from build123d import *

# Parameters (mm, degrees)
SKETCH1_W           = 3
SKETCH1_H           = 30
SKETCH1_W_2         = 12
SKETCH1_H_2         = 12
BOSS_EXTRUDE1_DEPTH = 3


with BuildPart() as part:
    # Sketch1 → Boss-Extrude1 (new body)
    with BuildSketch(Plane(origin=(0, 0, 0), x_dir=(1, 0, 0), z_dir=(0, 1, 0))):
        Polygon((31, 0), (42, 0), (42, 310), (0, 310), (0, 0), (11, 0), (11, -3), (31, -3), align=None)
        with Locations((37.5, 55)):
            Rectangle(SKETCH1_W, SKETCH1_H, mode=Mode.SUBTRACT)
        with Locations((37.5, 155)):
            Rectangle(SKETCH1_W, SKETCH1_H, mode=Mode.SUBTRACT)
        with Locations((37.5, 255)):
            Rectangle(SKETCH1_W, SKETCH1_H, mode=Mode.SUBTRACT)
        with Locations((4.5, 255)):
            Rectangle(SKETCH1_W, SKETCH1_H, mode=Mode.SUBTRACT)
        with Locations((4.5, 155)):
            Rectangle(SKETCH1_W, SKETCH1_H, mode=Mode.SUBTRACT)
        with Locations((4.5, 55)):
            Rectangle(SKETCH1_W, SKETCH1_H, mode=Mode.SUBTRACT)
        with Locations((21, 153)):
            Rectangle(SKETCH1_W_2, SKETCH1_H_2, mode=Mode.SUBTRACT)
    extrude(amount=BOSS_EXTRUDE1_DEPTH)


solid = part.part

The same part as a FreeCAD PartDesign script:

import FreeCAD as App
import Part
import Sketcher
from FreeCAD import Vector
Q = App.Units.Quantity


def add_polygon(sketch, points):
    """Adds a closed chain of lines whose ends are joined by coincident constraints."""
    first, n = sketch.GeometryCount, len(points)
    for a, b in zip(points, points[1:] + points[:1]):
        sketch.addGeometry(Part.LineSegment(App.Vector(*a, 0), App.Vector(*b, 0)), False)
    for i in range(n):
        sketch.addConstraint(Sketcher.Constraint("Coincident", first + i, 2, first + (i + 1) % n, 1))

doc = App.newDocument("Part")
body = doc.addObject("PartDesign::Body", "Body")

# Sketch on XZ plane
sketch1 = doc.addObject("Sketcher::SketchObject", "Sketch")
body.addObject(sketch1)
sketch1.AttachmentSupport = (doc.XZ_Plane, [""])
sketch1.MapMode = "FlatFace"
add_polygon(sketch1, [(31, 0), (42, 0), (42, -310), (0, -310), (0, 0), (11, 0), (11, 3), (31, 3)])  # lines 0-7
add_polygon(sketch1, [(6, -40), (3, -40), (3, -70), (6, -70)])  # lines 8-11
add_polygon(sketch1, [(39, -40), (36, -40), (36, -70), (39, -70)])  # lines 12-15
add_polygon(sketch1, [(27, -147), (15, -147), (15, -159), (27, -159)])  # lines 16-19
add_polygon(sketch1, [(6, -140), (3, -140), (3, -170), (6, -170)])  # lines 20-23
add_polygon(sketch1, [(6, -240), (3, -240), (3, -270), (6, -270)])  # lines 24-27
add_polygon(sketch1, [(39, -140), (36, -140), (36, -170), (39, -170)])  # lines 28-31
add_polygon(sketch1, [(39, -240), (36, -240), (36, -270), (39, -270)])  # lines 32-35
sketch1.addConstraint([
    Sketcher.Constraint("Horizontal", 0),
    Sketcher.Constraint("Vertical", 1),
    Sketcher.Constraint("Horizontal", 2),
    Sketcher.Constraint("Vertical", 3),
    Sketcher.Constraint("Horizontal", 4),
    Sketcher.Constraint("Vertical", 5),
    Sketcher.Constraint("Horizontal", 6),
    Sketcher.Constraint("Vertical", 7),
    Sketcher.Constraint("Horizontal", 8),
    Sketcher.Constraint("Vertical", 9),
    Sketcher.Constraint("Horizontal", 10),
    Sketcher.Constraint("Vertical", 11),
    Sketcher.Constraint("Horizontal", 12),
    Sketcher.Constraint("Vertical", 13),
    Sketcher.Constraint("Horizontal", 14),
    Sketcher.Constraint("Vertical", 15),
    Sketcher.Constraint("Horizontal", 16),
    Sketcher.Constraint("Vertical", 17),
    Sketcher.Constraint("Horizontal", 18),
    Sketcher.Constraint("Vertical", 19),
    Sketcher.Constraint("Horizontal", 20),
    Sketcher.Constraint("Vertical", 21),
    Sketcher.Constraint("Horizontal", 22),
    Sketcher.Constraint("Vertical", 23),
    Sketcher.Constraint("Horizontal", 24),
    Sketcher.Constraint("Vertical", 25),
    Sketcher.Constraint("Horizontal", 26),
    Sketcher.Constraint("Vertical", 27),
    Sketcher.Constraint("Horizontal", 28),
    Sketcher.Constraint("Vertical", 29),
    Sketcher.Constraint("Horizontal", 30),
    Sketcher.Constraint("Vertical", 31),
    Sketcher.Constraint("Horizontal", 32),
    Sketcher.Constraint("Vertical", 33),
    Sketcher.Constraint("Horizontal", 34),
    Sketcher.Constraint("Vertical", 35),
    Sketcher.Constraint("Coincident", 3, 2, -1, 1),
    Sketcher.Constraint("PointOnObject", 0, 2, -1),
    Sketcher.Constraint("Horizontal", 11, 2, 12, 2),
    Sketcher.Constraint("Horizontal", 10, 2, 13, 2),
    Sketcher.Constraint("Horizontal", 23, 2, 28, 2),
    Sketcher.Constraint("Horizontal", 22, 2, 29, 2),
    Sketcher.Constraint("Horizontal", 27, 2, 32, 2),
    Sketcher.Constraint("Horizontal", 26, 2, 33, 2),
    Sketcher.Constraint("Vertical", 9, 2, 20, 2),
    Sketcher.Constraint("Vertical", 11, 2, 22, 2),
    Sketcher.Constraint("Vertical", 21, 2, 24, 2),
    Sketcher.Constraint("Vertical", 23, 2, 26, 2),
    Sketcher.Constraint("Vertical", 13, 2, 28, 2),
    Sketcher.Constraint("Vertical", 15, 2, 30, 2),
    Sketcher.Constraint("Vertical", 29, 2, 32, 2),
    Sketcher.Constraint("Vertical", 31, 2, 34, 2),
    Sketcher.Constraint("Equal", 0, 4),
    Sketcher.Constraint("Equal", 10, 12),
    Sketcher.Constraint("Equal", 34, 5),
    Sketcher.Constraint("Equal", 18, 17),
    Sketcher.Constraint("Equal", 15, 21),
    Sketcher.Constraint("Equal", 23, 25),
    Sketcher.Constraint("DistanceX", 0, 1, 0, 2, Q("11 mm")),
    Sketcher.Constraint("DistanceX", 2, 2, 2, 1, Q("42 mm")),
    Sketcher.Constraint("DistanceX", 8, 2, 8, 1, Q("3 mm")),
    Sketcher.Constraint("DistanceX", 16, 2, 16, 1, Q("12 mm")),
    Sketcher.Constraint("DistanceY", 1, 2, 1, 1, Q("310 mm")),
    Sketcher.Constraint("DistanceY", 9, 2, 9, 1, Q("30 mm")),
    Sketcher.Constraint("DistanceX", -1, 1, 8, 2, Q("3 mm")),
    Sketcher.Constraint("DistanceY", 8, 2, -1, 1, Q("40 mm")),
    Sketcher.Constraint("DistanceX", -1, 1, 12, 2, Q("36 mm")),
    Sketcher.Constraint("DistanceX", -1, 1, 16, 2, Q("15 mm")),
    Sketcher.Constraint("DistanceY", 16, 2, -1, 1, Q("147 mm")),
    Sketcher.Constraint("DistanceY", 20, 2, -1, 1, Q("140 mm")),
    Sketcher.Constraint("DistanceY", 24, 2, -1, 1, Q("240 mm")),
])
pad1 = doc.addObject("PartDesign::Pad", "Pad")
body.addObject(pad1)
pad1.Profile = sketch1
pad1.Length = 3
pad1.Reversed = True

doc.recompute()
